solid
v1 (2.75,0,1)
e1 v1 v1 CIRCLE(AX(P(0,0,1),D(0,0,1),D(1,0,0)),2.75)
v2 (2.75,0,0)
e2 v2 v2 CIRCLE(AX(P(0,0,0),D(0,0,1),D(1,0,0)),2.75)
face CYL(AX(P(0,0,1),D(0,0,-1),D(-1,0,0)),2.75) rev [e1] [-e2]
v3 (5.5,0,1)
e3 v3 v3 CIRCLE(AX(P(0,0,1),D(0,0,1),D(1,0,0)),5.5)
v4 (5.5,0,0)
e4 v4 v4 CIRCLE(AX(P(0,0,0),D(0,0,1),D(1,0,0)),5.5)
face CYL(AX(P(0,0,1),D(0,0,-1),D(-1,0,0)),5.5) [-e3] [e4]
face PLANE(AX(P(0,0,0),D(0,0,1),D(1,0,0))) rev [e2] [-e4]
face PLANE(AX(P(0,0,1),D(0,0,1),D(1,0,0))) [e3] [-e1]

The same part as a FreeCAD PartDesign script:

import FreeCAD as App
import Part
import Sketcher

V = App.Vector

doc = App.newDocument("Part")
body = doc.addObject("PartDesign::Body", "Body")

# Sketch on XY plane
sketch1 = body.newObject("Sketcher::SketchObject", "Sketch")
sketch1.AttachmentSupport = (doc.getObject("XY_Plane"), [""])
sketch1.MapMode = "FlatFace"
sketch1.addGeometry([
    Part.Circle(V(0, 0, 0), V(0, 0, 1), 5.5),
    Part.Circle(V(0, 0, 0), V(0, 0, 1), 2.75),
], False)
sketch1.addConstraint([
    Sketcher.Constraint("Coincident", 0, 3, -1, 1),
    Sketcher.Constraint("Coincident", 1, 3, -1, 1),
    Sketcher.Constraint("Diameter", 0, 11.0),
    Sketcher.Constraint("Diameter", 1, 5.5),
])
pad1 = body.newObject("PartDesign::Pad", "Pad")
pad1.Profile = sketch1
pad1.Length = 1

doc.recompute()
